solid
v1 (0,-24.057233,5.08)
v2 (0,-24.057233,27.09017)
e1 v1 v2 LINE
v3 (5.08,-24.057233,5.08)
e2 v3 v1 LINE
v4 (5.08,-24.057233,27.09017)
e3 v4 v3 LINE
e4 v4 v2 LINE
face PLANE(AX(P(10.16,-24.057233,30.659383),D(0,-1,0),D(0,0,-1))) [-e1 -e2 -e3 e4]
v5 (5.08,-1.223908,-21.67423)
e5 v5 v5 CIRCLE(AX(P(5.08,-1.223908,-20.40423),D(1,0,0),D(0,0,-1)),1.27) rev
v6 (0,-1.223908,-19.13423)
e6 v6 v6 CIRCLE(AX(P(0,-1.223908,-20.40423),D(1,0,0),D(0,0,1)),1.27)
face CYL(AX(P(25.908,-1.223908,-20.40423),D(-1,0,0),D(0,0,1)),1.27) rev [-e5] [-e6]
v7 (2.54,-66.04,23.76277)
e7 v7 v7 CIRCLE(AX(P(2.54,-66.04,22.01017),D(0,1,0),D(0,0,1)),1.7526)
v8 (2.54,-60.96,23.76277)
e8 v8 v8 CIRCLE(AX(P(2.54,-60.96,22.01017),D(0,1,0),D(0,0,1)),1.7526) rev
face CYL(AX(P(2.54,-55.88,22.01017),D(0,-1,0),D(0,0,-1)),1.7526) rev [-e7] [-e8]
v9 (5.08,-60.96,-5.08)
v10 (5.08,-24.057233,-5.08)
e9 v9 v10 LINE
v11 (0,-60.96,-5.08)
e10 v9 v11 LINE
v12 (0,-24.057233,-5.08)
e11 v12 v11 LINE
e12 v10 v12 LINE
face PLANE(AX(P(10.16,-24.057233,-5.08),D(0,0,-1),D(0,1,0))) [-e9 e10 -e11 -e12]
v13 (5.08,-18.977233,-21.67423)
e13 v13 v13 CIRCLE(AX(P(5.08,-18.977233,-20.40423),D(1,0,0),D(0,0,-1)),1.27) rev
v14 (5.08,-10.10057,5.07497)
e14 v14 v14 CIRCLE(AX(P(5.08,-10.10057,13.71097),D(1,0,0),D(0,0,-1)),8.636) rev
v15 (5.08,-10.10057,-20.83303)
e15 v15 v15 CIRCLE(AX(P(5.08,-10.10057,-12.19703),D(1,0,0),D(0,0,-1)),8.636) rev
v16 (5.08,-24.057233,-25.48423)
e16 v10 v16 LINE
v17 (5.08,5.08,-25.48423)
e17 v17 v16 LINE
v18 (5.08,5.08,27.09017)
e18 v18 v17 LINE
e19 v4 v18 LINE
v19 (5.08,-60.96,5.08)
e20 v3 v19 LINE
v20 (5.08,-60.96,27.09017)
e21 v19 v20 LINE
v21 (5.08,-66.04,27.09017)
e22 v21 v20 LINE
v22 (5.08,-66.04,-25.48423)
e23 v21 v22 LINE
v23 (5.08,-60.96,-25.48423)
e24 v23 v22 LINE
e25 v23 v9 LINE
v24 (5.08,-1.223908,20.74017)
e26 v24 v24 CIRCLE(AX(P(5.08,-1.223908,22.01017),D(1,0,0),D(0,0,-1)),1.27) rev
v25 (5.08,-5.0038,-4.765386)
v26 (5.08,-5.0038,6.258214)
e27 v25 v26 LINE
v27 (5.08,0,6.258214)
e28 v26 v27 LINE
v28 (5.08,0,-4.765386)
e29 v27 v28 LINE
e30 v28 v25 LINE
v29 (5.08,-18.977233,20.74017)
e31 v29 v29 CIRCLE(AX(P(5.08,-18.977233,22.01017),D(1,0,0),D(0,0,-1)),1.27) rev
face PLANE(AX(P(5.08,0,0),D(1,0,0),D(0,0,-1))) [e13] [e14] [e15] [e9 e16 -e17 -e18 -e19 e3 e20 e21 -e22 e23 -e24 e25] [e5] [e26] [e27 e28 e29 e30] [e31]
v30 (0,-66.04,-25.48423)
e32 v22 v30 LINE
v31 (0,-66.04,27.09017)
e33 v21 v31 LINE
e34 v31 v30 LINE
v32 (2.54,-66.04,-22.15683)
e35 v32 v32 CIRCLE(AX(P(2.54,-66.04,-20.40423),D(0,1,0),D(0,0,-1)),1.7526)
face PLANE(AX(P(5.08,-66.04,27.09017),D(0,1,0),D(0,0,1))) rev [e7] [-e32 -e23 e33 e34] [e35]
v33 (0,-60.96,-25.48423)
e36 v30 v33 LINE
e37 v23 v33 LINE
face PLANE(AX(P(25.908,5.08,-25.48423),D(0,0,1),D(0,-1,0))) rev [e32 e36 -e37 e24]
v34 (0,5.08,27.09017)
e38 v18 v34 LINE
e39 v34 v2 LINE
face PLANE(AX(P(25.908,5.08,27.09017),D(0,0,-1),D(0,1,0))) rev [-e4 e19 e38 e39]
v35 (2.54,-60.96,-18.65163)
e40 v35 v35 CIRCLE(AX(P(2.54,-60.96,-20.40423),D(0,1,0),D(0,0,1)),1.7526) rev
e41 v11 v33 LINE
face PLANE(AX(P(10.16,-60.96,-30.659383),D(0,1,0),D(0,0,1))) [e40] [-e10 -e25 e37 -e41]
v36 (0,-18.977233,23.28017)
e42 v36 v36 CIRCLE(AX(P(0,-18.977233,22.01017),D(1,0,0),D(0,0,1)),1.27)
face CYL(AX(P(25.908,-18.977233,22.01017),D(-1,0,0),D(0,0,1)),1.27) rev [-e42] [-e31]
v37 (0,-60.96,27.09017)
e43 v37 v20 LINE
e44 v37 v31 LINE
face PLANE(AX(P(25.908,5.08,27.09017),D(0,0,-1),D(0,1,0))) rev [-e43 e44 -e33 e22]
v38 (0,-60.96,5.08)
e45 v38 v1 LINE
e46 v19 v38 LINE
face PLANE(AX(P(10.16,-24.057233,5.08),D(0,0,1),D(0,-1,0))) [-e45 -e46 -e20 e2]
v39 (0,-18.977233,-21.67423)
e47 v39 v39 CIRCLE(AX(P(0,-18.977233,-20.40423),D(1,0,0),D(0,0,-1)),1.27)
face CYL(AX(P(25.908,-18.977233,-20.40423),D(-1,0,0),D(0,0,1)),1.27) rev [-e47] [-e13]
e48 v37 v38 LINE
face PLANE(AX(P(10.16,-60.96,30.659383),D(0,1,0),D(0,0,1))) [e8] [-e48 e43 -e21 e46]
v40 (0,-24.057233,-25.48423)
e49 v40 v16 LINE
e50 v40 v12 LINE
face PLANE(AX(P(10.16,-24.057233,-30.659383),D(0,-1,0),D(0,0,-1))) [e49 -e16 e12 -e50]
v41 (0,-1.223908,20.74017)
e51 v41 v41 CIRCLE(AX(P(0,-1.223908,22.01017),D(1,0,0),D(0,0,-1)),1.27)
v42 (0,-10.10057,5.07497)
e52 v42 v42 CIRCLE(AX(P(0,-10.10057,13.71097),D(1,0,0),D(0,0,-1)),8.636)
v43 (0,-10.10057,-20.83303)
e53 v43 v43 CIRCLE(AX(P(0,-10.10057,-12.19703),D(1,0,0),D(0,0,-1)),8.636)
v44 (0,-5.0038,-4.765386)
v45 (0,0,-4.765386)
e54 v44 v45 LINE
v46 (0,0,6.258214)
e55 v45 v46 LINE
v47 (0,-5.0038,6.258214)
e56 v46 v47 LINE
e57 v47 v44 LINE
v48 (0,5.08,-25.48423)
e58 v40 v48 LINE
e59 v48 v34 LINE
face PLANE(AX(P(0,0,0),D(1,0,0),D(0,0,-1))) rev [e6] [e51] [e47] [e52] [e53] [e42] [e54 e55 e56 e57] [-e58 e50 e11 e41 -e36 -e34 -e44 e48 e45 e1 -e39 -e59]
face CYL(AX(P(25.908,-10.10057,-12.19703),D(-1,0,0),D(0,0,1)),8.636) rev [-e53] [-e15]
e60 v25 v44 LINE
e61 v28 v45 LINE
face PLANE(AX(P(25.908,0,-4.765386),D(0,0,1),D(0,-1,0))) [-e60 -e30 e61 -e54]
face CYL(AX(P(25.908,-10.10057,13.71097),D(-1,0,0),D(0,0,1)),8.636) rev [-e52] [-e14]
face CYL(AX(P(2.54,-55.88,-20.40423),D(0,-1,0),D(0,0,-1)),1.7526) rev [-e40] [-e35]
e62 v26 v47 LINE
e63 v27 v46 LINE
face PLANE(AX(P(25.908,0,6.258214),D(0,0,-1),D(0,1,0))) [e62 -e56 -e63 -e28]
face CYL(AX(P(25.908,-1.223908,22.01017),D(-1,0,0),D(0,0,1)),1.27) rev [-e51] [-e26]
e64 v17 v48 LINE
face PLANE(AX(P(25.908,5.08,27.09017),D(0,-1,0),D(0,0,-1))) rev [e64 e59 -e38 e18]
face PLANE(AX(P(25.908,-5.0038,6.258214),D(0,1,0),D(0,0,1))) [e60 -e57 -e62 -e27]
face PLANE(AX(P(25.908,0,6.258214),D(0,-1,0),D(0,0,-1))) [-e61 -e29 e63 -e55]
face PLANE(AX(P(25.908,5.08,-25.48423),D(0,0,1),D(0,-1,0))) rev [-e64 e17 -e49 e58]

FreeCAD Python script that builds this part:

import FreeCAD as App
import Part
import Sketcher

V = App.Vector
Q = App.Units.Quantity


def add_polygon(sketch, points):
    """Adds a closed chain of lines whose ends are joined by coincident constraints."""
    first, n = sketch.GeometryCount, len(points)
    for a, b in zip(points, points[1:] + points[:1]):
        sketch.addGeometry(Part.LineSegment(App.Vector(*a, 0), App.Vector(*b, 0)), False)
    for i in range(n):
        sketch.addConstraint(Sketcher.Constraint("Coincident", first + i, 2, first + (i + 1) % n, 1))

doc = App.newDocument("Part")
body = doc.addObject("PartDesign::Body", "Body")

sketch1 = body.newObject("Sketcher::SketchObject", "Sketch")
sketch1.AttachmentSupport = (doc.getObject("YZ_Plane"), [""])
sketch1.MapMode = "FlatFace"
add_polygon(sketch1, [(-56, -88), (-56, -63), (28, -63), (28, 64), (-56, 64), (-56, 89), (-66, 89), (-66, -88)])
sketch1.addConstraint(Sketcher.Constraint("Vertical", 0))
sketch1.addConstraint(Sketcher.Constraint("Horizontal", 1))
sketch1.addConstraint(Sketcher.Constraint("Vertical", 2))
sketch1.addConstraint(Sketcher.Constraint("Horizontal", 3))
sketch1.addConstraint(Sketcher.Constraint("Vertical", 4))
sketch1.addConstraint(Sketcher.Constraint("Horizontal", 5))
sketch1.addConstraint(Sketcher.Constraint("Vertical", 6))
sketch1.addConstraint(Sketcher.Constraint("Horizontal", 7))
sketch1.addConstraint(Sketcher.Constraint("Vertical", 0, 2, 3, 2))
sketch1.addConstraint(Sketcher.Constraint("Equal", 0, 4))
sketch1.addConstraint(Sketcher.Constraint("DistanceY", 0, 1, 0, 2, Q("1 in")))
sketch1.addConstraint(Sketcher.Constraint("DistanceY", 2, 1, 2, 2, Q("5 in")))
sketch1.addConstraint(Sketcher.Constraint("DistanceX", 5, 2, 5, 1, Q("0.4 in")))
sketch1.addConstraint(Sketcher.Constraint("DistanceX", 1, 1, 1, 2, Q("83.667179 mm")))
sketch1.addConstraint(Sketcher.Constraint("DistanceY", 0, 2, -1, 1, Q("62.99703 mm")))
sketch1.addConstraint(Sketcher.Constraint("DistanceX", 0, 2, -1, 1, Q("55.829703 mm")))
pad1 = body.newObject("PartDesign::Pad", "Pad")
pad1.Profile = sketch1
pad1.Length = Q("0.2 in")

sketch2 = body.newObject("Sketcher::SketchObject", "Sketch001")
sketch2.AttachmentSupport = (doc.getObject("YZ_Plane"), [""])
sketch2.MapMode = "FlatFace"
add_polygon(sketch2, [(-56, 51), (-66, 51), (-66, -50), (-56, -50)])
sketch2.addConstraint(Sketcher.Constraint("Horizontal", 0))
sketch2.addConstraint(Sketcher.Constraint("Vertical", 1))
sketch2.addConstraint(Sketcher.Constraint("Horizontal", 2))
sketch2.addConstraint(Sketcher.Constraint("Vertical", 3))
sketch2.addConstraint(Sketcher.Constraint("DistanceY", 1, 2, 1, 1, Q("4 in")))
sketch2.addConstraint(Sketcher.Constraint("DistanceX", 0, 2, 0, 1, Q("0.4 in")))
sketch2.addConstraint(Sketcher.Constraint("DistanceY", -1, 1, 0, 2, Q("51.30297 mm")))
sketch2.addConstraint(Sketcher.Constraint("DistanceX", 0, 2, -1, 1, Q("65.989703 mm")))
pocket1 = body.newObject("PartDesign::Pocket", "Pocket")
pocket1.Profile = sketch2
pocket1.Length = Q("0.9 in")
pocket1.Reversed = True

sketch3 = body.newObject("Sketcher::SketchObject", "Sketch002")
sketch3.AttachmentSupport = (doc.getObject("YZ_Plane"), [""])
sketch3.MapMode = "FlatFace"
sketch3.addGeometry(Part.Circle(V(-1.2, 22, 0), V(0, 0, 1), 1.3), False)
sketch3.addGeometry(Part.Circle(V(-19, 22, 0), V(0, 0, 1), 1.3), False)
sketch3.addGeometry(Part.Circle(V(-19, -20.4, 0), V(0, 0, 1), 1.3), False)
sketch3.addGeometry(Part.Circle(V(-1.2, -20.4, 0), V(0, 0, 1), 1.3), False)
sketch3.addConstraint(Sketcher.Constraint("Equal", 0, 1))
sketch3.addConstraint(Sketcher.Constraint("Equal", 1, 2))
sketch3.addConstraint(Sketcher.Constraint("Equal", 2, 3))
sketch3.addConstraint(Sketcher.Constraint("Horizontal", 0, 3, 1, 3))
sketch3.addConstraint(Sketcher.Constraint("Horizontal", 2, 3, 3, 3))
sketch3.addConstraint(Sketcher.Constraint("Vertical", 1, 3, 2, 3))
sketch3.addConstraint(Sketcher.Constraint("Vertical", 0, 3, 3, 3))
sketch3.addConstraint(Sketcher.Constraint("Diameter", 0, Q("0.1 in")))
sketch3.addConstraint(Sketcher.Constraint("DistanceY", 2, 3, 1, 3, Q("42.4144 mm")))
sketch3.addConstraint(Sketcher.Constraint("DistanceY", -1, 1, 0, 3, Q("22.01017 mm")))
sketch3.addConstraint(Sketcher.Constraint("DistanceX", 0, 3, -1, 1, Q("1.223908 mm")))
sketch3.addConstraint(Sketcher.Constraint("DistanceX", 1, 3, -1, 1, Q("18.977233 mm")))
pocket2 = body.newObject("PartDesign::Pocket", "Pocket001")
pocket2.Profile = sketch3
pocket2.Length = Q("1.02 in")
pocket2.Reversed = True

sketch4 = body.newObject("Sketcher::SketchObject", "Sketch003")
sketch4.AttachmentSupport = (doc.getObject("YZ_Plane"), [""])
sketch4.MapMode = "FlatFace"
add_polygon(sketch4, [(0, 6), (-5, 6), (-5, -5), (0, -5)])
sketch4.addConstraint(Sketcher.Constraint("Horizontal", 0))
sketch4.addConstraint(Sketcher.Constraint("Vertical", 1))
sketch4.addConstraint(Sketcher.Constraint("Horizontal", 2))
sketch4.addConstraint(Sketcher.Constraint("Vertical", 3))
sketch4.addConstraint(Sketcher.Constraint("PointOnObject", 2, 2, -2))
sketch4.addConstraint(Sketcher.Constraint("DistanceX", 0, 2, 0, 1, Q("0.197 in")))
sketch4.addConstraint(Sketcher.Constraint("DistanceY", 1, 2, 1, 1, Q("0.434 in")))
sketch4.addConstraint(Sketcher.Constraint("DistanceY", -1, 1, 0, 2, Q("6.258214 mm")))
pocket3 = body.newObject("PartDesign::Pocket", "Pocket002")
pocket3.Profile = sketch4
pocket3.Length = Q("1.02 in")
pocket3.Reversed = True

sketch5 = body.newObject("Sketcher::SketchObject", "Sketch004")
sketch5.AttachmentSupport = (doc.getObject("YZ_Plane"), [""])
sketch5.MapMode = "FlatFace"
sketch5.addGeometry(Part.Circle(V(-10, -12, 0), V(0, 0, 1), 9), False)
sketch5.addGeometry(Part.Circle(V(-10, 14, 0), V(0, 0, 1), 9), False)
sketch5.addConstraint(Sketcher.Constraint("Equal", 0, 1))
sketch5.addConstraint(Sketcher.Constraint("Vertical", 0, 3, 1, 3))
sketch5.addConstraint(Sketcher.Constraint("Diameter", 0, Q("0.68 in")))
sketch5.addConstraint(Sketcher.Constraint("DistanceY", 0, 3, 1, 3, Q("1.02 in")))
sketch5.addConstraint(Sketcher.Constraint("DistanceX", 0, 3, -1, 1, Q("10.10057 mm")))
sketch5.addConstraint(Sketcher.Constraint("DistanceY", 0, 3, -1, 1, Q("12.19703 mm")))
pocket4 = body.newObject("PartDesign::Pocket", "Pocket003")
pocket4.Profile = sketch5
pocket4.Length = Q("1.02 in")
pocket4.Reversed = True

sketch6 = body.newObject("Sketcher::SketchObject", "Sketch005")
sketch6.AttachmentSupport = (doc.getObject("YZ_Plane"), [""])
sketch6.MapMode = "FlatFace"
add_polygon(sketch6, [(45, 112), (-78, 112), (-78, -101), (45, -101)])
add_polygon(sketch6, [(-24, -25), (-24, 27), (5, 27), (5, -25)])
sketch6.addConstraint(Sketcher.Constraint("Horizontal", 0))
sketch6.addConstraint(Sketcher.Constraint("Vertical", 1))
sketch6.addConstraint(Sketcher.Constraint("Horizontal", 2))
sketch6.addConstraint(Sketcher.Constraint("Vertical", 3))
sketch6.addConstraint(Sketcher.Constraint("Vertical", 4))
sketch6.addConstraint(Sketcher.Constraint("Horizontal", 5))
sketch6.addConstraint(Sketcher.Constraint("Vertical", 6))
sketch6.addConstraint(Sketcher.Constraint("Horizontal", 7))
sketch6.addConstraint(Sketcher.Constraint("DistanceX", -1, 1, 5, 2, Q("0.2 in")))
sketch6.addConstraint(Sketcher.Constraint("DistanceY", 4, 1, 4, 2, Q("52.5744 mm")))
sketch6.addConstraint(Sketcher.Constraint("DistanceY", 1, 2, 1, 1, Q("212.20307 mm")))
sketch6.addConstraint(Sketcher.Constraint("DistanceX", 0, 2, 0, 1, Q("122.520662 mm")))
sketch6.addConstraint(Sketcher.Constraint("DistanceX", 5, 1, 5, 2, Q("29.137233 mm")))
sketch6.addConstraint(Sketcher.Constraint("DistanceX", 0, 2, -1, 1, Q("77.958339 mm")))
sketch6.addConstraint(Sketcher.Constraint("DistanceY", -1, 1, 4, 2, Q("27.09017 mm")))
sketch6.addConstraint(Sketcher.Constraint("DistanceY", -1, 1, 0, 2, Q("111.682933 mm")))
pocket5 = body.newObject("PartDesign::Pocket", "Pocket004")
pocket5.Profile = sketch6
pocket5.Length = Q("1.02 in")
pocket5.Reversed = True

sketch7 = body.newObject("Sketcher::SketchObject", "Sketch006")
sketch7.AttachmentSupport = (doc.getObject("YZ_Plane"), [""])
sketch7.MapMode = "FlatFace"
add_polygon(sketch7, [(-22, 27), (-66, 27), (-66, -25), (-22, -25)])
sketch7.addConstraint(Sketcher.Constraint("Horizontal", 0))
sketch7.addConstraint(Sketcher.Constraint("Vertical", 1))
sketch7.addConstraint(Sketcher.Constraint("Horizontal", 2))
sketch7.addConstraint(Sketcher.Constraint("Vertical", 3))
sketch7.addConstraint(Sketcher.Constraint("DistanceX", 0, 2, -1, 1, Q("2.6 in")))
sketch7.addConstraint(Sketcher.Constraint("DistanceY", 1, 2, 1, 1, Q("52.5744 mm")))
sketch7.addConstraint(Sketcher.Constraint("DistanceX", 0, 2, 0, 1, Q("43.722212 mm")))
sketch7.addConstraint(Sketcher.Constraint("DistanceY", -1, 1, 0, 2, Q("27.09017 mm")))
pad2 = body.newObject("PartDesign::Pad", "Pad001")
pad2.Profile = sketch7
pad2.Length = Q("0.2 in")

sketch8 = body.newObject("Sketcher::SketchObject", "Sketch007")
sketch8.AttachmentSupport = (doc.getObject("YZ_Plane"), [""])
sketch8.MapMode = "FlatFace"
add_polygon(sketch8, [(-24, 31), (-61, 31), (-61, 5), (-24, 5)])
add_polygon(sketch8, [(-24, -5), (-61, -5), (-61, -31), (-24, -31)])
sketch8.addConstraint(Sketcher.Constraint("Horizontal", 0))
sketch8.addConstraint(Sketcher.Constraint("Vertical", 1))
sketch8.addConstraint(Sketcher.Constraint("Horizontal", 2))
sketch8.addConstraint(Sketcher.Constraint("Vertical", 3))
sketch8.addConstraint(Sketcher.Constraint("Horizontal", 4))
sketch8.addConstraint(Sketcher.Constraint("Vertical", 5))
sketch8.addConstraint(Sketcher.Constraint("Horizontal", 6))
sketch8.addConstraint(Sketcher.Constraint("Vertical", 7))
sketch8.addConstraint(Sketcher.Constraint("Symmetric", 1, 2, 4, 2, -1))
sketch8.addConstraint(Sketcher.Constraint("Symmetric", 3, 2, 6, 2, -1))
sketch8.addConstraint(Sketcher.Constraint("DistanceX", 0, 2, -1, 1, Q("2.4 in")))
sketch8.addConstraint(Sketcher.Constraint("DistanceY", -1, 1, 1, 2, Q("0.2 in")))
sketch8.addConstraint(Sketcher.Constraint("DistanceX", 0, 2, 0, 1, Q("36.902767 mm")))
sketch8.addConstraint(Sketcher.Constraint("DistanceY", 1, 2, 1, 1, Q("25.579383 mm")))
pocket6 = body.newObject("PartDesign::Pocket", "Pocket005")
pocket6.Profile = sketch8
pocket6.Length = Q("0.4 in")
pocket6.Reversed = True

sketch9 = body.newObject("Sketcher::SketchObject", "Sketch008")
sketch9.AttachmentSupport = (doc.getObject("XZ_Plane"), [""])
sketch9.MapMode = "FlatFace"
sketch9.AttachmentOffset = App.Placement(V(0, 0, 2.6 * 25.4), App.Rotation())
sketch9.addGeometry(Part.Circle(V(2.5, 22, 0), V(0, 0, 1), 1.8), False)
sketch9.addGeometry(Part.Circle(V(2.5, -20.4, 0), V(0, 0, 1), 1.8), False)
sketch9.addConstraint(Sketcher.Constraint("Equal", 0, 1))
sketch9.addConstraint(Sketcher.Constraint("Vertical", 0, 3, 1, 3))
sketch9.addConstraint(Sketcher.Constraint("Diameter", 0, Q("0.138 in")))
sketch9.addConstraint(Sketcher.Constraint("DistanceX", -1, 1, 0, 3, Q("0.1 in")))
sketch9.addConstraint(Sketcher.Constraint("DistanceY", 1, 3, 0, 3, Q("42.4144 mm")))
sketch9.addConstraint(Sketcher.Constraint("DistanceY", -1, 1, 0, 3, Q("22.01017 mm")))
pocket7 = body.newObject("PartDesign::Pocket", "Pocket006")
pocket7.Profile = sketch9
pocket7.Length = Q("0.4 in")

doc.recompute()
